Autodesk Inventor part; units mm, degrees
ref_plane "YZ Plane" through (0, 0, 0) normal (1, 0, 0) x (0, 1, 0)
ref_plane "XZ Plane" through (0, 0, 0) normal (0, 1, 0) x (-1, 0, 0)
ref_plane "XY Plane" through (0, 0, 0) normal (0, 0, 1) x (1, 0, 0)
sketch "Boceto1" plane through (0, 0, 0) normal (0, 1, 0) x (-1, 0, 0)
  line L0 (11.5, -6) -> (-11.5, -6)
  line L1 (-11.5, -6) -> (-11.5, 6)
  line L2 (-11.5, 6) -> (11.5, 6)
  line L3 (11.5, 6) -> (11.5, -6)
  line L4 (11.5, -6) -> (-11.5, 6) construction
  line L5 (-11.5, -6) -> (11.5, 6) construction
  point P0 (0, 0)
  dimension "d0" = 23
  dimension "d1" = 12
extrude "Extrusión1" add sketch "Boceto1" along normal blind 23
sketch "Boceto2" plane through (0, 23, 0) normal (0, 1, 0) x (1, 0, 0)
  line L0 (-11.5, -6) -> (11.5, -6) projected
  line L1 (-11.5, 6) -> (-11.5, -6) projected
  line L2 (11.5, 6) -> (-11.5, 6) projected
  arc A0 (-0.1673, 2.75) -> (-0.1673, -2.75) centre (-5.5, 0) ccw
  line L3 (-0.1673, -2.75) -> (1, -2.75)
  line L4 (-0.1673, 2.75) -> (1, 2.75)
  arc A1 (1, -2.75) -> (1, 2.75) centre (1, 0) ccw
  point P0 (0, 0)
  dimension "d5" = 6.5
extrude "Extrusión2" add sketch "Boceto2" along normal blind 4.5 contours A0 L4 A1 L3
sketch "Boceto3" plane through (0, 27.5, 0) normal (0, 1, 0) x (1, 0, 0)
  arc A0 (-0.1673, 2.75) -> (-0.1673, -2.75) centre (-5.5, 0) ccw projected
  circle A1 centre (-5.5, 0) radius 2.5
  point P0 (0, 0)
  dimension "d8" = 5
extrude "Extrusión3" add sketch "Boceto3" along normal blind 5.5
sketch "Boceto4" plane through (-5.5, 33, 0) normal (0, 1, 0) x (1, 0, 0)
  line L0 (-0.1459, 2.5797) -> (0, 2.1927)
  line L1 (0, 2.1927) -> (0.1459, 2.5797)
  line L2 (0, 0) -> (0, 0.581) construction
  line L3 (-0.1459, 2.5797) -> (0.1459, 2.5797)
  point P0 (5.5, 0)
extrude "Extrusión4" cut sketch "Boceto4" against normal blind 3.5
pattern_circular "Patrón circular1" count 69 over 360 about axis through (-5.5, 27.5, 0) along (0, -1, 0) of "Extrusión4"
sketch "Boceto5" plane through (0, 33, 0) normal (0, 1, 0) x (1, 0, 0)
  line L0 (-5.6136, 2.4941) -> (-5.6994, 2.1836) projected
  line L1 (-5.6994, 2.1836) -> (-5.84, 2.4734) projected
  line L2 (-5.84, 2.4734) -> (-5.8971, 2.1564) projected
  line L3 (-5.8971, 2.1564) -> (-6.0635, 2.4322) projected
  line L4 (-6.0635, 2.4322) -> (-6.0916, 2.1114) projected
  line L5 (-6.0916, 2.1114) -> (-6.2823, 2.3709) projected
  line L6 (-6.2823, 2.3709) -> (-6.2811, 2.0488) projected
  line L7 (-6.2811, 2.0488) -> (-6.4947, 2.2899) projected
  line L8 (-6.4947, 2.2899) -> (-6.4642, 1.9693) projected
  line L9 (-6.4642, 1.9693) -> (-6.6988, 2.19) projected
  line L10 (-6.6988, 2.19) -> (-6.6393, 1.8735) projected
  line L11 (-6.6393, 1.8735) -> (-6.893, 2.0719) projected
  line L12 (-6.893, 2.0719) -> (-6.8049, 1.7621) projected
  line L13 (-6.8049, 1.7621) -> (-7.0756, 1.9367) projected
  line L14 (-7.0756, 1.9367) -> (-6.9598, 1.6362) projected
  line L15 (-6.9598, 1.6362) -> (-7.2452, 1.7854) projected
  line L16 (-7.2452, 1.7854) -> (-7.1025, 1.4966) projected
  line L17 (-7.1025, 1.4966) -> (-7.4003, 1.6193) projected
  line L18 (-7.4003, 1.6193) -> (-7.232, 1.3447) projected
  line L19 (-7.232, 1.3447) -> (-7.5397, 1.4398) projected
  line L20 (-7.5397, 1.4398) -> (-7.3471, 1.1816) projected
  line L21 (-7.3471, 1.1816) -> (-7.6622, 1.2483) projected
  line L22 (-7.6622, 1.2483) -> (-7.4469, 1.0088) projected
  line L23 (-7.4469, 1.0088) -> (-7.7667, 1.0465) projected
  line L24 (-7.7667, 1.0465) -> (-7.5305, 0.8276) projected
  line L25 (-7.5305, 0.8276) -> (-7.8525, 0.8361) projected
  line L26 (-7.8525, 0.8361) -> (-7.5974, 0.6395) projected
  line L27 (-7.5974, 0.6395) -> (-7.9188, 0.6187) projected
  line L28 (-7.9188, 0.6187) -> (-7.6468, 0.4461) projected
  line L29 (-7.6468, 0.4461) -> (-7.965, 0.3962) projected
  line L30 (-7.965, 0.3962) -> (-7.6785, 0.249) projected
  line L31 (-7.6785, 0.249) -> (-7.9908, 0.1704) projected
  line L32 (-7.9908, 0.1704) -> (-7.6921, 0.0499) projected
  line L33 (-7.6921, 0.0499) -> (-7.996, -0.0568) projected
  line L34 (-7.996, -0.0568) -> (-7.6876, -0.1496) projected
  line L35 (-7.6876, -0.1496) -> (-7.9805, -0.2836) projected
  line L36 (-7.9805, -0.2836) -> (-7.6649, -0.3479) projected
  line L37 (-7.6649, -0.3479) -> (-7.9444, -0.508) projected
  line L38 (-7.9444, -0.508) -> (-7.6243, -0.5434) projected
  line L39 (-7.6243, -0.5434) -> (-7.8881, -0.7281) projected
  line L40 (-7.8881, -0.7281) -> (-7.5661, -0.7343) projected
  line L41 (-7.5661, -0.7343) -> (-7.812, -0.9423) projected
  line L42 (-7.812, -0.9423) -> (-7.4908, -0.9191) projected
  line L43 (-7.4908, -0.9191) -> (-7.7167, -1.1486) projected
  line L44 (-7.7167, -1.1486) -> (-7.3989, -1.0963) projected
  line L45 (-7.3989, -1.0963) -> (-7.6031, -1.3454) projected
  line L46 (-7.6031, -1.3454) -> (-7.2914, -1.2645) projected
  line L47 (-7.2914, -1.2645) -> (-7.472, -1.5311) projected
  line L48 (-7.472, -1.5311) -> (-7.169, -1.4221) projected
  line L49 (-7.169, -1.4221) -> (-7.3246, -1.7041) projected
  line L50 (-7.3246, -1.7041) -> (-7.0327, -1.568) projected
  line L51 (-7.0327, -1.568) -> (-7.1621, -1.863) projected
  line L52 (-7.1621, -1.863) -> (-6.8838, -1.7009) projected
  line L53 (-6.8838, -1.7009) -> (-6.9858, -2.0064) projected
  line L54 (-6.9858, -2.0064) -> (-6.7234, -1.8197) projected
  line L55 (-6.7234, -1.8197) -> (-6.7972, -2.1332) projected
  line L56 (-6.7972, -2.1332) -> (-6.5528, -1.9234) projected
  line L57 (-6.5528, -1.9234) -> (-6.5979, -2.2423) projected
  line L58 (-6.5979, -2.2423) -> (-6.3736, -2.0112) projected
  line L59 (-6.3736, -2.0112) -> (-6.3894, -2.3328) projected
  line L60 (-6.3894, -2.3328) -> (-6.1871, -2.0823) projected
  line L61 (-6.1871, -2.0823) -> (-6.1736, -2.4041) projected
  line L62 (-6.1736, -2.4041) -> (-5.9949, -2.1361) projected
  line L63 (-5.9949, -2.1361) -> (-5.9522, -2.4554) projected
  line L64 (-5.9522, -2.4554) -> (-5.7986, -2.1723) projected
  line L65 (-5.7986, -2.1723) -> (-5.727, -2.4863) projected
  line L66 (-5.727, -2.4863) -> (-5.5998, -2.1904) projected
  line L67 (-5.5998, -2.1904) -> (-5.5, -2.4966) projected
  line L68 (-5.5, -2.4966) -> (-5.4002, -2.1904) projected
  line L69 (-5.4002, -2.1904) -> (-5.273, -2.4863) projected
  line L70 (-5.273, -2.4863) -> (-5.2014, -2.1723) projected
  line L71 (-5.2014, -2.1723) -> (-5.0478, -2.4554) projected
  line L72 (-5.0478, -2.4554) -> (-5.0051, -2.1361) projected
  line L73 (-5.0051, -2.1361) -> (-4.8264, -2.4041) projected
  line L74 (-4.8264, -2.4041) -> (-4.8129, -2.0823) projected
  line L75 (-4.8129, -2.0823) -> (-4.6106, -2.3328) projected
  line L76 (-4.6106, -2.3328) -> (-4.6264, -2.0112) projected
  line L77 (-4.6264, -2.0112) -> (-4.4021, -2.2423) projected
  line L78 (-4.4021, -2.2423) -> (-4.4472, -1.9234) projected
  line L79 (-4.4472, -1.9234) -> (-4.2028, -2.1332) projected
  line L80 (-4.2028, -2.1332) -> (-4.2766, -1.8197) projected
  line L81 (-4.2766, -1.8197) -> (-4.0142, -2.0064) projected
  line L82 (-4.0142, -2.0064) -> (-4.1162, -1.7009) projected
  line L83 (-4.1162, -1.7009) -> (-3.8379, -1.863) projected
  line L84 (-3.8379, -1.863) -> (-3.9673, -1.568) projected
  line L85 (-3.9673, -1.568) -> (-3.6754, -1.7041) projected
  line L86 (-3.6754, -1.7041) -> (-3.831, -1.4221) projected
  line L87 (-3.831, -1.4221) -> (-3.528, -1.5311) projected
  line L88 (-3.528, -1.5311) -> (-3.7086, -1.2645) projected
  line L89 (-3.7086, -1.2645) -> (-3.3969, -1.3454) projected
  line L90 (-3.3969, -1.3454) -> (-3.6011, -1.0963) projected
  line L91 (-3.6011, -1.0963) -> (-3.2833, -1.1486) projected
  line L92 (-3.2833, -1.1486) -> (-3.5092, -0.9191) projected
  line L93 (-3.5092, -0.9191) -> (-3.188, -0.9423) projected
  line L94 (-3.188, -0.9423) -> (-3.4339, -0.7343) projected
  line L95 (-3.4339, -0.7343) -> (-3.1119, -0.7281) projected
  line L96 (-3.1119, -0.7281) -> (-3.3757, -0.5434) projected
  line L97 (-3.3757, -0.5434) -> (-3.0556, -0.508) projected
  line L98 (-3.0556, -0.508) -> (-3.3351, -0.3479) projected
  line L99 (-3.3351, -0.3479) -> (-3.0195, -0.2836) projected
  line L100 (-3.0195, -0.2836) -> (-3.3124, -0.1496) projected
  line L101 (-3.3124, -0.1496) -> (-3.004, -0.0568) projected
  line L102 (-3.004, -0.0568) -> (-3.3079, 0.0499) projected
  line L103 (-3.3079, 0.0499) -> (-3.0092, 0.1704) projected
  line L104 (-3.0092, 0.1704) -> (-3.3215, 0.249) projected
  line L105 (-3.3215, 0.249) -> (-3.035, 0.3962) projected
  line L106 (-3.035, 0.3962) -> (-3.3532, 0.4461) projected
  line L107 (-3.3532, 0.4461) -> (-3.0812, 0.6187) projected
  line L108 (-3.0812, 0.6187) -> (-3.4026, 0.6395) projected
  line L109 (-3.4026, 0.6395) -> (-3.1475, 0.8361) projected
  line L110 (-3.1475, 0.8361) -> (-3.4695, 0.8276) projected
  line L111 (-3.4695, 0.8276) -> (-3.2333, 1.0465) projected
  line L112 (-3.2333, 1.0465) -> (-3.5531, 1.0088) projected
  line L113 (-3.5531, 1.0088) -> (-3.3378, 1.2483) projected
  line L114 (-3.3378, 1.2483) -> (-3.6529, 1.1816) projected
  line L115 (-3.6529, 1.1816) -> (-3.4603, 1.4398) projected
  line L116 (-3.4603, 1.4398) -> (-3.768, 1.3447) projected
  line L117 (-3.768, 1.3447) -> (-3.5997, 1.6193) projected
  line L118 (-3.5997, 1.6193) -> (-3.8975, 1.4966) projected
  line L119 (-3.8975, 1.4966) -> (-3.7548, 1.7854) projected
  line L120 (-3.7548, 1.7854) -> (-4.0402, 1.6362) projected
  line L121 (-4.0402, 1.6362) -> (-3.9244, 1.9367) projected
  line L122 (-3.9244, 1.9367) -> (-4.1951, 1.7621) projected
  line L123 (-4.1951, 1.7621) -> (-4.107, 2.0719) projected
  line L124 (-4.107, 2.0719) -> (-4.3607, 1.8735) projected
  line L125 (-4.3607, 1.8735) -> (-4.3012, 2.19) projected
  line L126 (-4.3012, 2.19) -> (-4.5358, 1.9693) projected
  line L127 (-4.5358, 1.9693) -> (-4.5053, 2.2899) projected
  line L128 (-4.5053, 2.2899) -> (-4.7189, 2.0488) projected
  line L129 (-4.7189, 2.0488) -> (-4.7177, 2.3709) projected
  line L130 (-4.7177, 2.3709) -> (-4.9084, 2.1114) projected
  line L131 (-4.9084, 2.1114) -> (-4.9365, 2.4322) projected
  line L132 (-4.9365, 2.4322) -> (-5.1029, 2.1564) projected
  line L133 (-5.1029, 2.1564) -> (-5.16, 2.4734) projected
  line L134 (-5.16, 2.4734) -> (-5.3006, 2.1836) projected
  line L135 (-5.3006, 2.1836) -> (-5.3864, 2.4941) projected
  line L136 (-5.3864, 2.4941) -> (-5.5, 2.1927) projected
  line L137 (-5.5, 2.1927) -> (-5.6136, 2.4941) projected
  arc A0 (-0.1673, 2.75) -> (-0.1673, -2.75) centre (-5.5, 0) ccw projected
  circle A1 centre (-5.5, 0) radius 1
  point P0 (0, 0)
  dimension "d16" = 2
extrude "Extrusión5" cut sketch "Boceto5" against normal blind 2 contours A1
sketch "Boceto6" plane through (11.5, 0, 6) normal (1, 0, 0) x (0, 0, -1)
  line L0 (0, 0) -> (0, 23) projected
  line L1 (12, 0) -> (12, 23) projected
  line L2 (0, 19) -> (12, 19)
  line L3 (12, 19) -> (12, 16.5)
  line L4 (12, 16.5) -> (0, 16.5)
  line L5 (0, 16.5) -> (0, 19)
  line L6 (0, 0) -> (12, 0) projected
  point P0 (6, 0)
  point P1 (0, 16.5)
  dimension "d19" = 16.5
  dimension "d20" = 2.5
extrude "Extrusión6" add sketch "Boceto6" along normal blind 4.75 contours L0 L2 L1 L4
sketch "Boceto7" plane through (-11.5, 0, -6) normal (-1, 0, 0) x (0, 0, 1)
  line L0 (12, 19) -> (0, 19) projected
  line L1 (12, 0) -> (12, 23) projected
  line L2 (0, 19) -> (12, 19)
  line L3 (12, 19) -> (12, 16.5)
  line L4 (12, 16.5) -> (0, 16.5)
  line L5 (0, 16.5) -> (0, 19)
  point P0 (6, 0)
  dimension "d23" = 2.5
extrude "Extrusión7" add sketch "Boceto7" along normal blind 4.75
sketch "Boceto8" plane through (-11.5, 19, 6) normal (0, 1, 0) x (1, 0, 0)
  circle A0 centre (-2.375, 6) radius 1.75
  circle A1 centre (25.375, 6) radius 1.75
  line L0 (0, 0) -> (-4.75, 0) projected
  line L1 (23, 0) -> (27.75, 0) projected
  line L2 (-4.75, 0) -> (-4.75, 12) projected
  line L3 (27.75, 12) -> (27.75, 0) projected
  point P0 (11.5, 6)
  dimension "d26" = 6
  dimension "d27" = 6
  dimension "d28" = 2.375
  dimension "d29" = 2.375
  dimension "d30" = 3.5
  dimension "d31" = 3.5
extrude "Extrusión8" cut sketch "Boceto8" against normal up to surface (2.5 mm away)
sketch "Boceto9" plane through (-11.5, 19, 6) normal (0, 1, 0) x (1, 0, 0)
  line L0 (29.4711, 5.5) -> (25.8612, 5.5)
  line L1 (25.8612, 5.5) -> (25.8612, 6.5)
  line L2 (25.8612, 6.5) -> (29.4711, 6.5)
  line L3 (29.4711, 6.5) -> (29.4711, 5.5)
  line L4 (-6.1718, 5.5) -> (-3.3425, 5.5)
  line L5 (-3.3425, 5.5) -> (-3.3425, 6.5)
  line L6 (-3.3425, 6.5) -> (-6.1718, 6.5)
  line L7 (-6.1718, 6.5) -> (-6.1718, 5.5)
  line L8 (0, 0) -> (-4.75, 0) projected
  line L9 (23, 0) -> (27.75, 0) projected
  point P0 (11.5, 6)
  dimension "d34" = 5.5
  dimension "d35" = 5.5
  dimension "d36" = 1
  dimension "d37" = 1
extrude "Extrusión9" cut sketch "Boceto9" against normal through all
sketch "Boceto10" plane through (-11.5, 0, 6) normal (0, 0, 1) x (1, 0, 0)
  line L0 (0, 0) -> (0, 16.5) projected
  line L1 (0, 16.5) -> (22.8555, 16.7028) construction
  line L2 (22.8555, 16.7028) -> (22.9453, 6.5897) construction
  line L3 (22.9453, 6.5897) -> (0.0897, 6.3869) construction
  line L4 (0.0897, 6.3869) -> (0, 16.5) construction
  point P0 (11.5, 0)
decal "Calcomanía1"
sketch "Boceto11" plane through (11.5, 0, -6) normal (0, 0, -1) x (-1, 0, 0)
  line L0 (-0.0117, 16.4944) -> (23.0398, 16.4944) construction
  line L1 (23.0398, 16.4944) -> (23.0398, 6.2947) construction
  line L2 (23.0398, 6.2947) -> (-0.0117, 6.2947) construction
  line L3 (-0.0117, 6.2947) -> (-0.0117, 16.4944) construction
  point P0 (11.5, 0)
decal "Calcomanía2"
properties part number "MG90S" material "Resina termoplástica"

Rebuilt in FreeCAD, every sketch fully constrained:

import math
import FreeCAD as App
import Part
import Sketcher

V = App.Vector

doc = App.newDocument("Part")
body = doc.addObject("PartDesign::Body", "Body")

# Sketch on XZ plane
sketch1 = body.newObject("Sketcher::SketchObject", "Sketch")
sketch1.AttachmentSupport = (doc.getObject("XZ_Plane"), [""])
sketch1.MapMode = "FlatFace"
sketch1.addGeometry([
    Part.LineSegment(V(11.5, -6, 0), V(-11.5, -6, 0)),
    Part.LineSegment(V(-11.5, -6, 0), V(-11.5, 6, 0)),
    Part.LineSegment(V(-11.5, 6, 0), V(11.5, 6, 0)),
    Part.LineSegment(V(11.5, 6, 0), V(11.5, -6, 0)),
], False)
sketch1.addConstraint([
    Sketcher.Constraint("Coincident", 0, 2, 1, 1),
    Sketcher.Constraint("Coincident", 1, 2, 2, 1),
    Sketcher.Constraint("Coincident", 2, 2, 3, 1),
    Sketcher.Constraint("Coincident", 3, 2, 0, 1),
    Sketcher.Constraint("Horizontal", 0),
    Sketcher.Constraint("Vertical", 1),
    Sketcher.Constraint("Horizontal", 2),
    Sketcher.Constraint("Vertical", 3),
    Sketcher.Constraint("Symmetric", 0, 2, 2, 2, -1, 1),
    Sketcher.Constraint("DistanceX", 0, 2, 0, 1, 23.0),
    Sketcher.Constraint("DistanceY", 1, 1, 1, 2, 12.0),
])
pad1 = body.newObject("PartDesign::Pad", "Pad")
pad1.Profile = sketch1
pad1.Length = 23
pad1.Reversed = True

# Sketch on XZ plane
sketch2 = body.newObject("Sketcher::SketchObject", "Sketch001")
sketch2.AttachmentSupport = (doc.getObject("XZ_Plane"), [""])
sketch2.MapMode = "FlatFace"
sketch2.AttachmentOffset = App.Placement(V(0, 0, -23), App.Rotation())
sketch2.addGeometry([
    Part.ArcOfCircle(Part.Circle(V(-5.5, 0, 0), V(0, 0, 1), 6.000016), math.radians(27.279535), math.radians(332.720465)),
    Part.LineSegment(V(-0.1673, 2.75, 0), V(1, 2.75, 0)),
    Part.ArcOfCircle(Part.Circle(V(1, 0, 0), V(0, 0, 1), 2.75), math.radians(-90), math.radians(90)),
    Part.LineSegment(V(1, -2.75, 0), V(-0.1673, -2.75, 0)),
], False)
sketch2.addConstraint([
    Sketcher.Constraint("Coincident", 0, 1, 1, 1),
    Sketcher.Constraint("Tangent", 1, 2, 2, 2),
    Sketcher.Constraint("Tangent", 2, 1, 3, 1),
    Sketcher.Constraint("Coincident", 3, 2, 0, 2),
    Sketcher.Constraint("Horizontal", 1),
    Sketcher.Constraint("Horizontal", 3),
    Sketcher.Constraint("Symmetric", 0, 1, 3, 2, -1),
    Sketcher.Constraint("Radius", 0, 6.0),
    Sketcher.Constraint("DistanceX", 0, 3, 2, 3, 6.5),
    Sketcher.Constraint("Radius", 2, 2.75),
    Sketcher.Constraint("DistanceX", -1, 1, 2, 3, 1.0),
])
pad2 = body.newObject("PartDesign::Pad", "Pad001")
pad2.Profile = sketch2
pad2.Length = 4.5
pad2.Reversed = True

# Sketch on XZ plane
sketch3 = body.newObject("Sketcher::SketchObject", "Sketch002")
sketch3.AttachmentSupport = (doc.getObject("XZ_Plane"), [""])
sketch3.MapMode = "FlatFace"
sketch3.AttachmentOffset = App.Placement(V(0, 0, -27.5), App.Rotation())
sketch3.addGeometry(Part.Circle(V(-5.5, 0, 0), V(0, 0, 1), 2.5), False)
sketch3.addConstraint([
    Sketcher.Constraint("PointOnObject", 0, 3, -1),
    Sketcher.Constraint("Diameter", 0, 5.0),
    Sketcher.Constraint("DistanceX", 0, 3, -1, 1, 5.5),
])
pad3 = body.newObject("PartDesign::Pad", "Pad002")
pad3.Profile = sketch3
pad3.Length = 5.5
pad3.Reversed = True

# Sketch on XZ plane
sketch4 = body.newObject("Sketcher::SketchObject", "Sketch003")
sketch4.AttachmentSupport = (doc.getObject("XZ_Plane"), [""])
sketch4.MapMode = "FlatFace"
sketch4.AttachmentOffset = App.Placement(V(0, 0, -33), App.Rotation())
sketch4.addGeometry([
    Part.LineSegment(V(-5.3541, -2.5797, 0), V(-5.6459, -2.5797, 0)),
    Part.LineSegment(V(-5.6459, -2.5797, 0), V(-5.5, -2.1927, 0)),
    Part.LineSegment(V(-5.5, -2.1927, 0), V(-5.3541, -2.5797, 0)),
], False)
sketch4.addConstraint([
    Sketcher.Constraint("Coincident", 0, 2, 1, 1),
    Sketcher.Constraint("Coincident", 1, 2, 2, 1),
    Sketcher.Constraint("Coincident", 2, 2, 0, 1),
    Sketcher.Constraint("Horizontal", 0),
    Sketcher.Constraint("Equal", 1, 2),
    Sketcher.Constraint("DistanceX", 1, 2, -1, 1, 5.5),
    Sketcher.Constraint("DistanceX", 0, 2, 0, 1, 0.2918),
    Sketcher.Constraint("DistanceY", 0, 2, 1, 2, 0.387),
    Sketcher.Constraint("DistanceY", 0, 2, -1, 1, 2.5797),
])
pocket1 = body.newObject("PartDesign::Pocket", "Pocket")
pocket1.Profile = sketch4
pocket1.Length = 3.5
pocket1.Reversed = True
doc.recompute()

datumline = body.newObject("PartDesign::Line", "DatumLine")
datumline.Placement = App.Placement(V(-5.5, 0, 0), App.Rotation(V(0, 0, 1), V(0, 1, 0)))
polarpattern = body.newObject("PartDesign::PolarPattern", "PolarPattern")
polarpattern.Originals = [pocket1]
polarpattern.Axis = (datumline, [""])
polarpattern.Angle = 360
polarpattern.Occurrences = 69
body.Tip = polarpattern

# Sketch on XZ plane
sketch5 = body.newObject("Sketcher::SketchObject", "Sketch004")
sketch5.AttachmentSupport = (doc.getObject("XZ_Plane"), [""])
sketch5.MapMode = "FlatFace"
sketch5.AttachmentOffset = App.Placement(V(0, 0, -33), App.Rotation())
sketch5.addGeometry(Part.Circle(V(-5.5, 0, 0), V(0, 0, 1), 1), False)
sketch5.addConstraint([
    Sketcher.Constraint("PointOnObject", 0, 3, -1),
    Sketcher.Constraint("Diameter", 0, 2.0),
    Sketcher.Constraint("DistanceX", 0, 3, -1, 1, 5.5),
])
pocket2 = body.newObject("PartDesign::Pocket", "Pocket001")
pocket2.Profile = sketch5
pocket2.Length = 2
pocket2.Reversed = True

# Sketch on YZ plane
sketch6 = body.newObject("Sketcher::SketchObject", "Sketch005")
sketch6.AttachmentSupport = (doc.getObject("YZ_Plane"), [""])
sketch6.MapMode = "FlatFace"
sketch6.AttachmentOffset = App.Placement(V(0, 0, 11.5), App.Rotation())
sketch6.addGeometry([
    Part.LineSegment(V(19, 6, 0), V(16.5, 6, 0)),
    Part.LineSegment(V(16.5, 6, 0), V(16.5, -6, 0)),
    Part.LineSegment(V(16.5, -6, 0), V(19, -6, 0)),
    Part.LineSegment(V(19, -6, 0), V(19, 6, 0)),
], False)
sketch6.addConstraint([
    Sketcher.Constraint("Coincident", 0, 2, 1, 1),
    Sketcher.Constraint("Coincident", 1, 2, 2, 1),
    Sketcher.Constraint("Coincident", 2, 2, 3, 1),
    Sketcher.Constraint("Coincident", 3, 2, 0, 1),
    Sketcher.Constraint("Horizontal", 0),
    Sketcher.Constraint("Vertical", 1),
    Sketcher.Constraint("Horizontal", 2),
    Sketcher.Constraint("Vertical", 3),
    Sketcher.Constraint("DistanceX", 0, 2, 0, 1, 2.5),
    Sketcher.Constraint("DistanceX", -1, 1, 0, 2, 16.5),
    Sketcher.Constraint("DistanceY", 1, 2, 1, 1, 12.0),
    Sketcher.Constraint("DistanceY", -1, 1, 0, 2, 6.0),
])
pad4 = body.newObject("PartDesign::Pad", "Pad003")
pad4.Profile = sketch6
pad4.Length = 4.75

# Sketch on YZ plane
sketch7 = body.newObject("Sketcher::SketchObject", "Sketch006")
sketch7.AttachmentSupport = (doc.getObject("YZ_Plane"), [""])
sketch7.MapMode = "FlatFace"
sketch7.AttachmentOffset = App.Placement(V(0, 0, -11.5), App.Rotation())
sketch7.addGeometry([
    Part.LineSegment(V(16.5, 6, 0), V(19, 6, 0)),
    Part.LineSegment(V(19, 6, 0), V(19, -6, 0)),
    Part.LineSegment(V(19, -6, 0), V(16.5, -6, 0)),
    Part.LineSegment(V(16.5, -6, 0), V(16.5, 6, 0)),
], False)
sketch7.addConstraint([
    Sketcher.Constraint("Coincident", 0, 2, 1, 1),
    Sketcher.Constraint("Coincident", 1, 2, 2, 1),
    Sketcher.Constraint("Coincident", 2, 2, 3, 1),
    Sketcher.Constraint("Coincident", 3, 2, 0, 1),
    Sketcher.Constraint("Horizontal", 0),
    Sketcher.Constraint("Vertical", 1),
    Sketcher.Constraint("Horizontal", 2),
    Sketcher.Constraint("Vertical", 3),
    Sketcher.Constraint("DistanceX", 0, 1, 0, 2, 2.5),
    Sketcher.Constraint("DistanceY", 1, 2, 1, 1, 12.0),
    Sketcher.Constraint("DistanceX", -1, 1, 0, 2, 19.0),
    Sketcher.Constraint("DistanceY", -1, 1, 0, 2, 6.0),
])
pad5 = body.newObject("PartDesign::Pad", "Pad004")
pad5.Profile = sketch7
pad5.Length = 4.75
pad5.Reversed = True

# Sketch on XZ plane
sketch8 = body.newObject("Sketcher::SketchObject", "Sketch007")
sketch8.AttachmentSupport = (doc.getObject("XZ_Plane"), [""])
sketch8.MapMode = "FlatFace"
sketch8.AttachmentOffset = App.Placement(V(0, 0, -19), App.Rotation())
sketch8.addGeometry([
    Part.Circle(V(-13.875, 0, 0), V(0, 0, 1), 1.75),
    Part.Circle(V(13.875, 0, 0), V(0, 0, 1), 1.75),
], False)
sketch8.addConstraint([
    Sketcher.Constraint("Equal", 0, 1),
    Sketcher.Constraint("Symmetric", 0, 3, 1, 3, -1, 1),
    Sketcher.Constraint("PointOnObject", 0, 3, -1),
    Sketcher.Constraint("Diameter", 0, 3.5),
    Sketcher.Constraint("DistanceX", 0, 3, 1, 3, 27.75),
])
pocket3 = body.newObject("PartDesign::Pocket", "Pocket002")
pocket3.Profile = sketch8
pocket3.Length = 2.5
pocket3.Reversed = True

# Sketch on XZ plane
sketch9 = body.newObject("Sketcher::SketchObject", "Sketch008")
sketch9.AttachmentSupport = (doc.getObject("XZ_Plane"), [""])
sketch9.MapMode = "FlatFace"
sketch9.AttachmentOffset = App.Placement(V(0, 0, -19), App.Rotation())
sketch9.addGeometry([
    Part.LineSegment(V(14.3612, 0.5, 0), V(17.9711, 0.5, 0)),  # 0
    Part.LineSegment(V(17.9711, 0.5, 0), V(17.9711, -0.5, 0)),  # 1
    Part.LineSegment(V(17.9711, -0.5, 0), V(14.3612, -0.5, 0)),  # 2
    Part.LineSegment(V(14.3612, -0.5, 0), V(14.3612, 0.5, 0)),  # 3
    Part.LineSegment(V(-17.6718, -0.5, 0), V(-17.6718, 0.5, 0)),  # 4
    Part.LineSegment(V(-17.6718, 0.5, 0), V(-14.8425, 0.5, 0)),  # 5
    Part.LineSegment(V(-14.8425, 0.5, 0), V(-14.8425, -0.5, 0)),  # 6
    Part.LineSegment(V(-14.8425, -0.5, 0), V(-17.6718, -0.5, 0)),  # 7
], False)
sketch9.addConstraint([
    Sketcher.Constraint("Coincident", 0, 2, 1, 1),
    Sketcher.Constraint("Coincident", 1, 2, 2, 1),
    Sketcher.Constraint("Coincident", 2, 2, 3, 1),
    Sketcher.Constraint("Coincident", 3, 2, 0, 1),
    Sketcher.Constraint("Coincident", 4, 2, 5, 1),
    Sketcher.Constraint("Coincident", 5, 2, 6, 1),
    Sketcher.Constraint("Coincident", 6, 2, 7, 1),
    Sketcher.Constraint("Coincident", 7, 2, 4, 1),
    Sketcher.Constraint("Horizontal", 0),
    Sketcher.Constraint("Vertical", 1),
    Sketcher.Constraint("Horizontal", 2),
    Sketcher.Constraint("Vertical", 3),
    Sketcher.Constraint("Vertical", 4),
    Sketcher.Constraint("Horizontal", 5),
    Sketcher.Constraint("Vertical", 6),
    Sketcher.Constraint("Horizontal", 7),
    Sketcher.Constraint("Horizontal", 3, 2, 4, 2),
    Sketcher.Constraint("Horizontal", 2, 2, 6, 2),
    Sketcher.Constraint("DistanceY", 1, 2, 1, 1, 1.0),
    Sketcher.Constraint("DistanceX", 0, 1, 0, 2, 3.61),
    Sketcher.Constraint("DistanceY", -1, 1, 0, 2, 0.5),
    Sketcher.Constraint("DistanceX", 5, 1, 5, 2, 2.8293),
    Sketcher.Constraint("DistanceX", -1, 1, 0, 2, 17.971),
    Sketcher.Constraint("DistanceX", 4, 2, 3, 2, 32.033),
])
pocket4 = body.newObject("PartDesign::Pocket", "Pocket003")
pocket4.Profile = sketch9
pocket4.Type = "ThroughAll"
pocket4.Reversed = True

doc.recompute()
